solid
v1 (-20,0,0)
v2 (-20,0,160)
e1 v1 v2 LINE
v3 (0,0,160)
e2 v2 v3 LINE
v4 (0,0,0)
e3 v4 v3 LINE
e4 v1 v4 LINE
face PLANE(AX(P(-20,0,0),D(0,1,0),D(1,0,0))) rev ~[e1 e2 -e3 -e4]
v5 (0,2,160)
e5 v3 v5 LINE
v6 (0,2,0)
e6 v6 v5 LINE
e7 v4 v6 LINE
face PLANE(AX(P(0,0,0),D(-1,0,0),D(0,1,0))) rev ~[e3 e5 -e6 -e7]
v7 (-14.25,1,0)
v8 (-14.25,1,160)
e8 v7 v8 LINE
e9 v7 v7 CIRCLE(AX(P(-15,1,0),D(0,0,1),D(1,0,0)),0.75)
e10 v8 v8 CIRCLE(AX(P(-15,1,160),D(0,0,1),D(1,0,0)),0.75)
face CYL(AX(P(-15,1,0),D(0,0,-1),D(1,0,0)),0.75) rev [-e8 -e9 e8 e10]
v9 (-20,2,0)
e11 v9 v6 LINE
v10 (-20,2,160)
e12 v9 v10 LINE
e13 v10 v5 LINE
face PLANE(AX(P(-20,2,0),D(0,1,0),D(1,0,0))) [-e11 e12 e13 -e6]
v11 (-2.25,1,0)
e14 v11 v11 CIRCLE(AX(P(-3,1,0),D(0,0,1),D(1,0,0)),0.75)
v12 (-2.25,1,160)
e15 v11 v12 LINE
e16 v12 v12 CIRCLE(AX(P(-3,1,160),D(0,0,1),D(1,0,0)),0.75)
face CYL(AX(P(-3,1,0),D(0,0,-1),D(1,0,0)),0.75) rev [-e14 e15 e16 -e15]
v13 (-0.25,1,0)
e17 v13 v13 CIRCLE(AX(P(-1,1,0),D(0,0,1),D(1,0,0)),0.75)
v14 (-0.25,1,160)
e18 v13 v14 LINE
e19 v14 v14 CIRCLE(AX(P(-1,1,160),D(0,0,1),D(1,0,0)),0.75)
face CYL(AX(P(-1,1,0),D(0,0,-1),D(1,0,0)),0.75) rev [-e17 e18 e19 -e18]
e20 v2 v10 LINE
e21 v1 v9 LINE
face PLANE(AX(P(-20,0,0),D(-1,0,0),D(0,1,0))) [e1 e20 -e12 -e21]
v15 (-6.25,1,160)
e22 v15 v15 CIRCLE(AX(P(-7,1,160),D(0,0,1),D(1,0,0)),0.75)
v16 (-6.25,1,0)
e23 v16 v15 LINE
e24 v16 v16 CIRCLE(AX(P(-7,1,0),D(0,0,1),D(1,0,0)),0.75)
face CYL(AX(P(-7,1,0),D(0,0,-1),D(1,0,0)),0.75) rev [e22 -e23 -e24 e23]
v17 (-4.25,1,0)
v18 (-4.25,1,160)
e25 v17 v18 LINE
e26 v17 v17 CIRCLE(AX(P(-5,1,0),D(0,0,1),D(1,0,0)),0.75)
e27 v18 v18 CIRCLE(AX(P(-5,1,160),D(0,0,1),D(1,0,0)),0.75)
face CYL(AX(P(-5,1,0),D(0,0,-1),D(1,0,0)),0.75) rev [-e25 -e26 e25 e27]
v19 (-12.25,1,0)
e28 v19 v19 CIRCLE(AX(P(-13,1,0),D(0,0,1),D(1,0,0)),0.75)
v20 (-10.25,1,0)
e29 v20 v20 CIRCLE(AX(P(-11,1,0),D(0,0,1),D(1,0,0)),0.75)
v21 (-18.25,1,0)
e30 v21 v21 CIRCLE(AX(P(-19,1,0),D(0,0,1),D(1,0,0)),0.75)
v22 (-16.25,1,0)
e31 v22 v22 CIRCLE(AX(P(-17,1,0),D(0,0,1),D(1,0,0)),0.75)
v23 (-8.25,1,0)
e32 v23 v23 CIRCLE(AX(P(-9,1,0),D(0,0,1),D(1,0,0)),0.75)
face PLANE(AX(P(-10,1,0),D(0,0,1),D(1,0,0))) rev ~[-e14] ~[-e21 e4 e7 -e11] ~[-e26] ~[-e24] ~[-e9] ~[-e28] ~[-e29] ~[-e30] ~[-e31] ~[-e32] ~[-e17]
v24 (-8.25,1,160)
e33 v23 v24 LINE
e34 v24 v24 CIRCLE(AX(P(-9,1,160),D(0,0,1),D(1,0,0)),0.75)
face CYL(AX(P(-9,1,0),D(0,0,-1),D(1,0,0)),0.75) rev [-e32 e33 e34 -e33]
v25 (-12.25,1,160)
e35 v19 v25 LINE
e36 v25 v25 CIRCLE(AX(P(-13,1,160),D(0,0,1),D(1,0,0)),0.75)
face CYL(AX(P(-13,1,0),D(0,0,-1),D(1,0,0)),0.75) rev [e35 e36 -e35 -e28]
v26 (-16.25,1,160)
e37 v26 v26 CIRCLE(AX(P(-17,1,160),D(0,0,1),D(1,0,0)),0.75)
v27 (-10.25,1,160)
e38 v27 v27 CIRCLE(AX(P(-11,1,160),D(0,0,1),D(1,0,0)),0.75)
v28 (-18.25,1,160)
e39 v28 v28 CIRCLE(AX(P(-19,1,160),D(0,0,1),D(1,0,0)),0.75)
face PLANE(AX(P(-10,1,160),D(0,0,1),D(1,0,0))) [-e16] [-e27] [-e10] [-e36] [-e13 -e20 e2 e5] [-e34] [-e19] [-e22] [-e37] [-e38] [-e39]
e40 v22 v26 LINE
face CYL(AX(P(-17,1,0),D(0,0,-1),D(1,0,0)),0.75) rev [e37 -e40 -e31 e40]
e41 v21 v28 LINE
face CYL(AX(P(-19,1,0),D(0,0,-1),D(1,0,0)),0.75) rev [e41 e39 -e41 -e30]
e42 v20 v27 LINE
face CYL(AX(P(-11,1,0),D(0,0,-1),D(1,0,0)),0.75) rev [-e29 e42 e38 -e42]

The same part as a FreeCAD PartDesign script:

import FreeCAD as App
import Part
import Sketcher
Q = App.Units.Quantity

doc = App.newDocument("Part")
body = doc.addObject("PartDesign::Body", "Body")

# Sketch on XY plane
sketch1 = doc.addObject("Sketcher::SketchObject", "Sketch")
body.addObject(sketch1)
sketch1.AttachmentSupport = (doc.XY_Plane, [""])
sketch1.MapMode = "FlatFace"
sketch1.addGeometry([
    Part.LineSegment(App.Vector(-20, 2, 0), App.Vector(-20, 0, 0)),  # 0
    Part.LineSegment(App.Vector(-20, 0, 0), App.Vector(0, 0, 0)),  # 1
    Part.LineSegment(App.Vector(0, 0, 0), App.Vector(0, 2, 0)),  # 2
    Part.LineSegment(App.Vector(0, 2, 0), App.Vector(-20, 2, 0)),  # 3
    Part.Circle(App.Vector(-19, 1, 0), App.Vector(0, 0, 1), 0.8),  # 4
    Part.Circle(App.Vector(-17, 1, 0), App.Vector(0, 0, 1), 0.8),  # 5
    Part.Circle(App.Vector(-15, 1, 0), App.Vector(0, 0, 1), 0.8),  # 6
    Part.Circle(App.Vector(-13, 1, 0), App.Vector(0, 0, 1), 0.8),  # 7
    Part.Circle(App.Vector(-11, 1, 0), App.Vector(0, 0, 1), 0.8),  # 8
    Part.Circle(App.Vector(-9, 1, 0), App.Vector(0, 0, 1), 0.8),  # 9
    Part.Circle(App.Vector(-7, 1, 0), App.Vector(0, 0, 1), 0.8),  # 10
    Part.Circle(App.Vector(-5, 1, 0), App.Vector(0, 0, 1), 0.8),  # 11
    Part.Circle(App.Vector(-3, 1, 0), App.Vector(0, 0, 1), 0.8),  # 12
    Part.Circle(App.Vector(-1, 1, 0), App.Vector(0, 0, 1), 0.8),  # 13
], False)
sketch1.addConstraint([
    Sketcher.Constraint("Coincident", 0, 2, 1, 1),
    Sketcher.Constraint("Coincident", 1, 2, 2, 1),
    Sketcher.Constraint("Coincident", 2, 2, 3, 1),
    Sketcher.Constraint("Coincident", 3, 2, 0, 1),
    Sketcher.Constraint("Vertical", 0),
    Sketcher.Constraint("Horizontal", 1),
    Sketcher.Constraint("Vertical", 2),
    Sketcher.Constraint("Horizontal", 3),
    Sketcher.Constraint("Coincident", 1, 2, -1, 1),
    Sketcher.Constraint("Equal", 4, 5),
    Sketcher.Constraint("Equal", 5, 6),
    Sketcher.Constraint("Equal", 6, 7),
    Sketcher.Constraint("Equal", 7, 8),
    Sketcher.Constraint("Equal", 8, 9),
    Sketcher.Constraint("Equal", 9, 10),
    Sketcher.Constraint("Equal", 10, 11),
    Sketcher.Constraint("Equal", 11, 12),
    Sketcher.Constraint("Equal", 12, 13),
    Sketcher.Constraint("Horizontal", 4, 3, 5, 3),
    Sketcher.Constraint("Horizontal", 5, 3, 6, 3),
    Sketcher.Constraint("Horizontal", 6, 3, 7, 3),
    Sketcher.Constraint("Horizontal", 7, 3, 8, 3),
    Sketcher.Constraint("Horizontal", 8, 3, 9, 3),
    Sketcher.Constraint("Horizontal", 9, 3, 10, 3),
    Sketcher.Constraint("Horizontal", 10, 3, 11, 3),
    Sketcher.Constraint("Horizontal", 11, 3, 12, 3),
    Sketcher.Constraint("Horizontal", 12, 3, 13, 3),
    Sketcher.Constraint("Diameter", 4, Q("1.5 mm")),
    Sketcher.Constraint("DistanceX", 1, 1, 1, 2, Q("20 mm")),
    Sketcher.Constraint("DistanceY", 0, 2, 0, 1, Q("2 mm")),
    Sketcher.Constraint("DistanceX", 4, 3, -1, 1, Q("19 mm")),
    Sketcher.Constraint("DistanceY", -1, 1, 4, 3, Q("1 mm")),
    Sketcher.Constraint("DistanceX", 5, 3, -1, 1, Q("17 mm")),
    Sketcher.Constraint("DistanceX", 6, 3, -1, 1, Q("15 mm")),
    Sketcher.Constraint("DistanceX", 7, 3, -1, 1, Q("13 mm")),
    Sketcher.Constraint("DistanceX", 8, 3, -1, 1, Q("11 mm")),
    Sketcher.Constraint("DistanceX", 9, 3, -1, 1, Q("9 mm")),
    Sketcher.Constraint("DistanceX", 10, 3, -1, 1, Q("7 mm")),
    Sketcher.Constraint("DistanceX", 11, 3, -1, 1, Q("5 mm")),
    Sketcher.Constraint("DistanceX", 12, 3, -1, 1, Q("3 mm")),
    Sketcher.Constraint("DistanceX", 13, 3, -1, 1, Q("1 mm")),
])
pad1 = doc.addObject("PartDesign::Pad", "Pad")
body.addObject(pad1)
pad1.Profile = sketch1
pad1.Length = 160

doc.recompute()
